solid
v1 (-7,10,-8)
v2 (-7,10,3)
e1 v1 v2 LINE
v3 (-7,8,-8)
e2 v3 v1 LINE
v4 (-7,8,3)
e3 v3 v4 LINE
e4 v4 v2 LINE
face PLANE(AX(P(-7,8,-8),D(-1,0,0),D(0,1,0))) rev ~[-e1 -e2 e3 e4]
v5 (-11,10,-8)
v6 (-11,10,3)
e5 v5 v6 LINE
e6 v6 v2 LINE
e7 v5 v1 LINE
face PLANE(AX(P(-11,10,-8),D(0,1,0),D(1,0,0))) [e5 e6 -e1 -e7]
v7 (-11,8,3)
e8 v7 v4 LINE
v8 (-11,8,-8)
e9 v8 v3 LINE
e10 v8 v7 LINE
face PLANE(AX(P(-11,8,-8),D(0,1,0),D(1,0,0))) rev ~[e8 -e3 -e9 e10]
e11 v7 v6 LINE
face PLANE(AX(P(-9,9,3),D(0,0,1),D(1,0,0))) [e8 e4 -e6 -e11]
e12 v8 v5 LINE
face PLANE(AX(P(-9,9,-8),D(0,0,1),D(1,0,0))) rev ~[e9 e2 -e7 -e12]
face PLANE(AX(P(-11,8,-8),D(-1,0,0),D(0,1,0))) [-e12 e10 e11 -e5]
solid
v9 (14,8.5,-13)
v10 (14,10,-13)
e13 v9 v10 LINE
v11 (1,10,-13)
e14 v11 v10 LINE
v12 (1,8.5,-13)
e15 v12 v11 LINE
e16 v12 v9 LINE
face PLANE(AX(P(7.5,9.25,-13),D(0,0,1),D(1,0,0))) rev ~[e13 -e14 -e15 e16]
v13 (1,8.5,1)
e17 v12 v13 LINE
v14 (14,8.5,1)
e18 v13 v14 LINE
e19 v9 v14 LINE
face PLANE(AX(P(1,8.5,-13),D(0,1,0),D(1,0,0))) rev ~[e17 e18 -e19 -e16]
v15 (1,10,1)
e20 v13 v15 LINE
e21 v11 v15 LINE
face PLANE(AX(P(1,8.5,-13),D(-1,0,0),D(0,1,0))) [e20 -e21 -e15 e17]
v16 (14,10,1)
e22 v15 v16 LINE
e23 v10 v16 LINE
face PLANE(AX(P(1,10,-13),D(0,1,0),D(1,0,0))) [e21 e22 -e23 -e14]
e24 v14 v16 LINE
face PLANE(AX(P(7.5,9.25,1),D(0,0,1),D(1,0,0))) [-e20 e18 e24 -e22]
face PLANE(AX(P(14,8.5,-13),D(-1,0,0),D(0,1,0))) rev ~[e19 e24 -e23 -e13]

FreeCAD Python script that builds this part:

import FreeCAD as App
import Part
import Sketcher


def add_polygon(sketch, points):
    """Adds a closed chain of lines whose ends are joined by coincident constraints."""
    first, n = sketch.GeometryCount, len(points)
    for a, b in zip(points, points[1:] + points[:1]):
        sketch.addGeometry(Part.LineSegment(App.Vector(*a, 0), App.Vector(*b, 0)), False)
    for i in range(n):
        sketch.addConstraint(Sketcher.Constraint("Coincident", first + i, 2, first + (i + 1) % n, 1))

doc = App.newDocument("Part")
params = doc.addObject("Spreadsheet::Sheet", "Params")
for row, (alias, value) in enumerate([
    ("sketch1_width", "13 mm"),
    ("sketch1_height", "1.5 mm"),
    ("pad1_length", "14 mm"),
    ("sketch2_width", "4 mm"),
    ("sketch2_height", "2 mm"),
    ("pad2_length", "11 mm"),
], start=1):
    params.set(f"A{row}", alias)
    params.set(f"B{row}", "=" + value)
    params.setAlias(f"B{row}", alias)

body = doc.addObject("PartDesign::Body", "Body")

sketch1 = body.newObject("Sketcher::SketchObject", "Sketch")
sketch1.AttachmentSupport = (doc.getObject("XY_Plane"), [""])
sketch1.MapMode = "FlatFace"
sketch1.AttachmentOffset = App.Placement(App.Vector(0, 0, -13), App.Rotation())
add_polygon(sketch1, [(1, 10), (1, 8.5), (14, 8.5), (14, 10)])
sketch1.addConstraint([
    Sketcher.Constraint("Vertical", 0),
    Sketcher.Constraint("Horizontal", 1),
    Sketcher.Constraint("Vertical", 2),
    Sketcher.Constraint("Horizontal", 3),
    Sketcher.Constraint("DistanceX", 1, 1, 1, 2, 13.0),
    Sketcher.Constraint("DistanceY", 0, 2, 0, 1, 1.5),
    Sketcher.Constraint("DistanceX", -1, 1, 0, 2, 1.0),
    Sketcher.Constraint("DistanceY", -1, 1, 2, 2, 10.0),
])
sketch1.setExpression("Constraints[8]", "Params.sketch1_width")
sketch1.setExpression("Constraints[9]", "Params.sketch1_height")
pad1 = body.newObject("PartDesign::Pad", "Pad")
pad1.Profile = sketch1
pad1.setExpression("Length", "Params.pad1_length")
body2 = doc.addObject("PartDesign::Body", "Body001")
body2.AllowCompound = True

sketch2 = body2.newObject("Sketcher::SketchObject", "Sketch001")
sketch2.AttachmentSupport = (doc.getObject("XY_Plane001"), [""])
sketch2.MapMode = "FlatFace"
sketch2.AttachmentOffset = App.Placement(App.Vector(0, 0, -8), App.Rotation())
add_polygon(sketch2, [(-11, 10), (-11, 8), (-7, 8), (-7, 10)])
sketch2.addConstraint([
    Sketcher.Constraint("Vertical", 0),
    Sketcher.Constraint("Horizontal", 1),
    Sketcher.Constraint("Vertical", 2),
    Sketcher.Constraint("Horizontal", 3),
    Sketcher.Constraint("DistanceX", 1, 1, 1, 2, 4.0),
    Sketcher.Constraint("DistanceY", 0, 2, 0, 1, 2.0),
    Sketcher.Constraint("DistanceX", 0, 2, -1, 1, 11.0),
    Sketcher.Constraint("DistanceY", -1, 1, 0, 2, 8.0),
])
sketch2.setExpression("Constraints[8]", "Params.sketch2_width")
sketch2.setExpression("Constraints[9]", "Params.sketch2_height")
pad2 = body2.newObject("PartDesign::Pad", "Pad001")
pad2.Profile = sketch2
pad2.setExpression("Length", "Params.pad2_length")
doc.recompute()

boolean = body2.newObject("PartDesign::Boolean", "Boolean")
boolean.Type = "Fuse"
boolean.addObjects([body])

doc.recompute()
